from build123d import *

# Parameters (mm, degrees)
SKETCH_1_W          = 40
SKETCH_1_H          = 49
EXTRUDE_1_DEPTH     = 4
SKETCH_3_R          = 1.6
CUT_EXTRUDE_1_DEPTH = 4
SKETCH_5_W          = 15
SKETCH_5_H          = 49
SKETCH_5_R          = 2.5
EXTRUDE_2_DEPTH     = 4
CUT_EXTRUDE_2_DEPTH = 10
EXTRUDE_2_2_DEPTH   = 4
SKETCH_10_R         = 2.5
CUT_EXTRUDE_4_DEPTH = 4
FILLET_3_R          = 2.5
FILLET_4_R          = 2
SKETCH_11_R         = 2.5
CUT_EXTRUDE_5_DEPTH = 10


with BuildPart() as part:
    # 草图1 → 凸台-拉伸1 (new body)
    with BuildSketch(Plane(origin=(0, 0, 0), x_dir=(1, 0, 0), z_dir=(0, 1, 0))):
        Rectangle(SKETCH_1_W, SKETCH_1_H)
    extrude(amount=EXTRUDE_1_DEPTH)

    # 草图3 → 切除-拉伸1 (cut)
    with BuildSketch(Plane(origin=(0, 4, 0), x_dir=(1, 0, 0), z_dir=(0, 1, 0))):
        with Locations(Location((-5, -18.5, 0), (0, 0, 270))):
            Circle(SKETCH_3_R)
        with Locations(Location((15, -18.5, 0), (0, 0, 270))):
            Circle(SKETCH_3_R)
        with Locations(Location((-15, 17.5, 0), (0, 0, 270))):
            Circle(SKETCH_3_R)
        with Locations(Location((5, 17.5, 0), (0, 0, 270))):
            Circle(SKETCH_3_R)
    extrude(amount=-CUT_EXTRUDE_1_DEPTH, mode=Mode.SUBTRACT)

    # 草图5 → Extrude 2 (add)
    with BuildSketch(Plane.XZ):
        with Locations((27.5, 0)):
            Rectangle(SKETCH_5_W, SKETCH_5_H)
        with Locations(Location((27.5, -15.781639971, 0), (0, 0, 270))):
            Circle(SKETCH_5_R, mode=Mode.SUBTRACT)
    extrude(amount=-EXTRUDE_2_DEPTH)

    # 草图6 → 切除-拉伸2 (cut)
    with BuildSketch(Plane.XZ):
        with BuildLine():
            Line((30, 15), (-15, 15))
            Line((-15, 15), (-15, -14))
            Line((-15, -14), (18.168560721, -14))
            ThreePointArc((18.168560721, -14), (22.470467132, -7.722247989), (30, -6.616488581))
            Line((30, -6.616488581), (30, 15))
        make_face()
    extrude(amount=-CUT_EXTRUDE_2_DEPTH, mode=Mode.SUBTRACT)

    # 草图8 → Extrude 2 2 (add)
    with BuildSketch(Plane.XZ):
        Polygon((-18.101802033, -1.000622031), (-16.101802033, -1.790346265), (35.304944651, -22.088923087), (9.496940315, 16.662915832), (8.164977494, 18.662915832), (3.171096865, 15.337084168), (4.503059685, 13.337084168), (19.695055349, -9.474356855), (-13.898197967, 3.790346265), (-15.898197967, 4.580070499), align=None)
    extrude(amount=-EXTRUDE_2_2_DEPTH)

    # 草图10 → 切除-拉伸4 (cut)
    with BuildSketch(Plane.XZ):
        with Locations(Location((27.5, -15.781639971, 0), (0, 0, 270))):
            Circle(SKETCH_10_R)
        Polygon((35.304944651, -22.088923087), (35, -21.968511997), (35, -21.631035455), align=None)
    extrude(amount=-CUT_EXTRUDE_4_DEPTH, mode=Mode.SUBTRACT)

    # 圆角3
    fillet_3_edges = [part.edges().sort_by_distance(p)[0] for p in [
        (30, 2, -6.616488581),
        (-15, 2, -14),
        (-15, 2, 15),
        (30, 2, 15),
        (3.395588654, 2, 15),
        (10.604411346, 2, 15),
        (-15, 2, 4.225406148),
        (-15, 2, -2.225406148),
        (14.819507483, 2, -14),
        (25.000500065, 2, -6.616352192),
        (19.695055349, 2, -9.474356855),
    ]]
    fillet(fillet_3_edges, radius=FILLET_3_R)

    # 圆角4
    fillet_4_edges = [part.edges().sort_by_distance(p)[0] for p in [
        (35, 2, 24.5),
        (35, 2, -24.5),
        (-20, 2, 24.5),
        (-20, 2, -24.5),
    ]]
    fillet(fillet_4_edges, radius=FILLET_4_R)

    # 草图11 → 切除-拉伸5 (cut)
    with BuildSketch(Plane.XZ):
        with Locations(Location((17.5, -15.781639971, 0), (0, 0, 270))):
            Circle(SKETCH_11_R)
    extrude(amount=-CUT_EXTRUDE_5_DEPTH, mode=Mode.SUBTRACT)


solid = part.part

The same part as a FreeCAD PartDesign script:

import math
import FreeCAD as App
import Part
import Sketcher

V = App.Vector
Q = App.Units.Quantity


def edges_at(feature, points):
    """Names of the edges that pass closest to the given points."""
    edges = feature.Shape.Edges
    near = lambda p: min(range(len(edges)), key=lambda i: edges[i].distToShape(Part.Vertex(*p))[0])
    return sorted({f"Edge{near(p) + 1}" for p in points})


def add_polygon(sketch, points):
    """Adds a closed chain of lines whose ends are joined by coincident constraints."""
    first, n = sketch.GeometryCount, len(points)
    for a, b in zip(points, points[1:] + points[:1]):
        sketch.addGeometry(Part.LineSegment(App.Vector(*a, 0), App.Vector(*b, 0)), False)
    for i in range(n):
        sketch.addConstraint(Sketcher.Constraint("Coincident", first + i, 2, first + (i + 1) % n, 1))

doc = App.newDocument("Part")
params = doc.addObject("Spreadsheet::Sheet", "Params")
for row, (alias, value) in enumerate([
    ("sketch1_width", "40 mm"),
    ("sketch1_height", "49 mm"),
    ("pad1_length", "4 mm"),
    ("sketch2_diameter", "3.2 mm"),
    ("pocket1_length", "4 mm"),
    ("sketch3_diameter", "5 mm"),
    ("sketch3_width", "15 mm"),
    ("sketch3_height", "49 mm"),
    ("pad2_length", "4 mm"),
    ("sketch4_radius", "9.5 mm"),
    ("sketch4_width", "45 mm"),
    ("sketch4_height", "29 mm"),
    ("pocket2_length", "10 mm"),
    ("sketch5_length", "6 mm"),
    ("sketch5_length2", "6 mm"),
    ("pad3_length", "4 mm"),
    ("sketch6_diameter", "5 mm"),
    ("pocket3_length", "4 mm"),
    ("fillet_radius", "2.5 mm"),
    ("fillet2_radius", "2 mm"),
    ("sketch7_diameter", "5 mm"),
    ("pocket4_length", "10 mm"),
], start=1):
    params.set(f"A{row}", alias)
    params.set(f"B{row}", "=" + value)
    params.setAlias(f"B{row}", alias)

body = doc.addObject("PartDesign::Body", "Body")

# Sketch on XZ plane
sketch1 = doc.addObject("Sketcher::SketchObject", "Sketch")
body.addObject(sketch1)
sketch1.AttachmentSupport = (doc.XZ_Plane, [""])
sketch1.MapMode = "FlatFace"
add_polygon(sketch1, [(-20, -24), (-20, 24), (20, 24), (20, -24)])  # lines 0-3
sketch1.addConstraint([
    Sketcher.Constraint("Vertical", 0),
    Sketcher.Constraint("Horizontal", 1),
    Sketcher.Constraint("Vertical", 2),
    Sketcher.Constraint("Horizontal", 3),
    Sketcher.Constraint("Symmetric", 0, 2, 2, 2, -1, 1),
    Sketcher.Constraint("DistanceX", 1, 1, 1, 2, Q("40 mm")),
    Sketcher.Constraint("DistanceY", 0, 1, 0, 2, Q("49 mm")),
])
sketch1.setExpression("Constraints[9]", "Params.sketch1_width")
sketch1.setExpression("Constraints[10]", "Params.sketch1_height")
pad1 = doc.addObject("PartDesign::Pad", "Pad")
body.addObject(pad1)
pad1.Profile = sketch1
pad1.setExpression("Length", "Params.pad1_length")
pad1.Reversed = True

# Sketch on XZ plane
sketch2 = doc.addObject("Sketcher::SketchObject", "Sketch001")
body.addObject(sketch2)
sketch2.AttachmentSupport = (doc.XZ_Plane, [""])
sketch2.MapMode = "FlatFace"
sketch2.AttachmentOffset = App.Placement(V(0, 0, -4), App.Rotation())
sketch2.addGeometry([
    Part.Circle(V(-5, 18.5, 0), V(0, 0, 1), 1.6),
    Part.Circle(V(15, 18.5, 0), V(0, 0, 1), 1.6),
    Part.Circle(V(-15, -17.5, 0), V(0, 0, 1), 1.6),
    Part.Circle(V(5, -17.5, 0), V(0, 0, 1), 1.6),
], False)
sketch2.addConstraint([
    Sketcher.Constraint("Equal", 0, 1),
    Sketcher.Constraint("Equal", 1, 2),
    Sketcher.Constraint("Equal", 2, 3),
    Sketcher.Constraint("Horizontal", 0, 3, 1, 3),
    Sketcher.Constraint("Horizontal", 2, 3, 3, 3),
    Sketcher.Constraint("Diameter", 0, Q("3.2 mm")),
    Sketcher.Constraint("DistanceX", 0, 3, -1, 1, Q("5 mm")),
    Sketcher.Constraint("DistanceX", -1, 1, 1, 3, Q("15 mm")),
    Sketcher.Constraint("DistanceX", 2, 3, -1, 1, Q("15 mm")),
    Sketcher.Constraint("DistanceX", -1, 1, 3, 3, Q("5 mm")),
    Sketcher.Constraint("DistanceY", 2, 3, 0, 3, Q("36 mm")),
    Sketcher.Constraint("DistanceY", -1, 1, 0, 3, Q("18.5 mm")),
])
sketch2.setExpression("Constraints[5]", "Params.sketch2_diameter")
pocket1 = doc.addObject("PartDesign::Pocket", "Pocket")
body.addObject(pocket1)
pocket1.Profile = sketch2
pocket1.setExpression("Length", "Params.pocket1_length")
pocket1.Reversed = True

# Sketch on XZ plane
sketch3 = doc.addObject("Sketcher::SketchObject", "Sketch002")
body.addObject(sketch3)
sketch3.AttachmentSupport = (doc.XZ_Plane, [""])
sketch3.MapMode = "FlatFace"
add_polygon(sketch3, [(20, 24.5), (20, -24.5), (35, -24.5), (35, 24.5)])  # lines 0-3
sketch3.addGeometry(Part.Circle(V(27.5, -15.8, 0), V(0, 0, 1), 2.5), False)  # 4
sketch3.addConstraint([
    Sketcher.Constraint("Vertical", 0),
    Sketcher.Constraint("Horizontal", 1),
    Sketcher.Constraint("Vertical", 2),
    Sketcher.Constraint("Horizontal", 3),
    Sketcher.Constraint("Diameter", 4, Q("5 mm")),
    Sketcher.Constraint("DistanceX", 1, 1, 1, 2, Q("15 mm")),
    Sketcher.Constraint("DistanceY", 0, 2, 0, 1, Q("49 mm")),
    Sketcher.Constraint("DistanceX", -1, 1, 0, 2, Q("20 mm")),
    Sketcher.Constraint("DistanceX", -1, 1, 4, 3, Q("27.5 mm")),
    Sketcher.Constraint("DistanceY", 0, 2, -1, 1, Q("24.5 mm")),
    Sketcher.Constraint("DistanceY", 4, 3, -1, 1, Q("15.78164 mm")),
])
sketch3.setExpression("Constraints[8]", "Params.sketch3_diameter")
sketch3.setExpression("Constraints[9]", "Params.sketch3_width")
sketch3.setExpression("Constraints[10]", "Params.sketch3_height")
pad2 = doc.addObject("PartDesign::Pad", "Pad001")
body.addObject(pad2)
pad2.Profile = sketch3
pad2.setExpression("Length", "Params.pad2_length")
pad2.Reversed = True

# Sketch on XZ plane
sketch4 = doc.addObject("Sketcher::SketchObject", "Sketch003")
body.addObject(sketch4)
sketch4.AttachmentSupport = (doc.XZ_Plane, [""])
sketch4.MapMode = "FlatFace"
sketch4.addGeometry([
    Part.LineSegment(V(30, 15, 0), V(-15, 15, 0)),  # 0
    Part.LineSegment(V(-15, 15, 0), V(-15, -14, 0)),  # 1
    Part.LineSegment(V(-15, -14, 0), V(18, -14, 0)),  # 2
    Part.ArcOfCircle(Part.Circle(V(28, -16, 0), V(0, 0, 1), 10), math.radians(75), math.radians(169)),  # 3
    Part.LineSegment(V(30, -7, 0), V(30, 15, 0)),  # 4
], False)
sketch4.addConstraint([
    Sketcher.Constraint("Coincident", 0, 2, 1, 1),
    Sketcher.Constraint("Coincident", 1, 2, 2, 1),
    Sketcher.Constraint("Coincident", 2, 2, 3, 2),
    Sketcher.Constraint("Coincident", 3, 1, 4, 1),
    Sketcher.Constraint("Coincident", 4, 2, 0, 1),
    Sketcher.Constraint("Horizontal", 0),
    Sketcher.Constraint("Vertical", 1),
    Sketcher.Constraint("Horizontal", 2),
    Sketcher.Constraint("Vertical", 4),
    Sketcher.Constraint("Radius", 3, Q("9.5 mm")),
    Sketcher.Constraint("DistanceX", 0, 2, 0, 1, Q("45 mm")),
    Sketcher.Constraint("DistanceY", 1, 2, 1, 1, Q("29 mm")),
    Sketcher.Constraint("DistanceX", 0, 2, -1, 1, Q("15 mm")),
    Sketcher.Constraint("DistanceY", -1, 1, 0, 2, Q("15 mm")),
    Sketcher.Constraint("DistanceX", -1, 1, 3, 3, Q("27.5 mm")),
    Sketcher.Constraint("DistanceX", 2, 1, 2, 2, Q("33.168561 mm")),
])
sketch4.setExpression("Constraints[9]", "Params.sketch4_radius")
sketch4.setExpression("Constraints[10]", "Params.sketch4_width")
sketch4.setExpression("Constraints[11]", "Params.sketch4_height")
pocket2 = doc.addObject("PartDesign::Pocket", "Pocket001")
body.addObject(pocket2)
pocket2.Profile = sketch4
pocket2.setExpression("Length", "Params.pocket2_length")

# Sketch on XZ plane
sketch5 = doc.addObject("Sketcher::SketchObject", "Sketch004")
body.addObject(sketch5)
sketch5.AttachmentSupport = (doc.XZ_Plane, [""])
sketch5.MapMode = "FlatFace"
add_polygon(sketch5, [(-18.101802, -1.000622), (-16.101802, -1.790346), (35.304945, -22.088923), (9.49694, 16.662916), (8.164977, 18.662916), (3.171097, 15.337084), (4.50306, 13.337084), (19.695055, -9.474357), (-13.898198, 3.790346), (-15.898198, 4.58007)])  # lines 0-9
sketch5.addConstraint([
    Sketcher.Constraint("Distance", 4, Q("6 mm")),
    Sketcher.Constraint("Distance", 9, Q("6 mm")),
    Sketcher.Constraint("DistanceY", 2, 2, 3, 2, Q("2 mm")),
    Sketcher.Constraint("DistanceY", 5, 2, 4, 2, Q("2 mm")),
    Sketcher.Constraint("DistanceX", 8, 2, 7, 2, Q("2 mm")),
    Sketcher.Constraint("DistanceX", 9, 2, 0, 2, Q("2 mm")),
    Sketcher.Constraint("DistanceX", 0, 2, 4, 2, Q("19.272899 mm")),
    Sketcher.Constraint("Distance", 0, Q("2.150271 mm")),
    Sketcher.Constraint("Distance", 2, Q("46.559189 mm")),
    Sketcher.Constraint("Distance", 3, Q("2.402941 mm")),
    Sketcher.Constraint("Distance", 5, Q("2.402941 mm")),
    Sketcher.Constraint("Distance", 8, Q("2.150271 mm")),
    Sketcher.Constraint("DistanceX", -1, 1, 2, 2, Q("9.49694 mm")),
    Sketcher.Constraint("DistanceX", -1, 1, 5, 2, Q("4.50306 mm")),
    Sketcher.Constraint("DistanceY", -1, 1, 8, 2, Q("4.58007 mm")),
    Sketcher.Constraint("DistanceY", 1, 2, 2, 2, Q("38.751839 mm")),
    Sketcher.Constraint("DistanceY", 0, 2, 4, 2, Q("17.12743 mm")),
    Sketcher.Constraint("DistanceX", 6, 2, 1, 2, Q("15.609889 mm")),
    Sketcher.Constraint("DistanceY", 6, 2, 5, 2, Q("22.811441 mm")),
    Sketcher.Constraint("DistanceY", 7, 2, 3, 2, Q("14.87257 mm")),
])
sketch5.setExpression("Constraints[10]", "Params.sketch5_length")
sketch5.setExpression("Constraints[11]", "Params.sketch5_length2")
pad3 = doc.addObject("PartDesign::Pad", "Pad002")
body.addObject(pad3)
pad3.Profile = sketch5
pad3.setExpression("Length", "Params.pad3_length")
pad3.Reversed = True

# Sketch on XZ plane
sketch6 = doc.addObject("Sketcher::SketchObject", "Sketch005")
body.addObject(sketch6)
sketch6.AttachmentSupport = (doc.XZ_Plane, [""])
sketch6.MapMode = "FlatFace"
sketch6.addGeometry(Part.Circle(V(27.5, -15.78, 0), V(0, 0, 1), 2.5), False)  # 0
add_polygon(sketch6, [(35, -21.97), (35.3, -22.09), (35, -21.63)])  # lines 1-3
sketch6.addConstraint([
    Sketcher.Constraint("Vertical", 3),
    Sketcher.Constraint("Diameter", 0, Q("5 mm")),
    Sketcher.Constraint("DistanceX", -1, 1, 2, 2, Q("35 mm")),
    Sketcher.Constraint("DistanceX", -1, 1, 0, 3, Q("27.5 mm")),
    Sketcher.Constraint("Distance", 2, Q("0.550138 mm")),
    Sketcher.Constraint("DistanceY", 3, 2, 3, 1, Q("0.337477 mm")),
    Sketcher.Constraint("DistanceY", 0, 3, -1, 1, Q("15.78164 mm")),
    Sketcher.Constraint("DistanceY", 3, 2, -1, 1, Q("21.968512 mm")),
    Sketcher.Constraint("DistanceY", 1, 2, 3, 2, Q("0.120411 mm")),
])
sketch6.setExpression("Constraints[4]", "Params.sketch6_diameter")
pocket3 = doc.addObject("PartDesign::Pocket", "Pocket002")
body.addObject(pocket3)
pocket3.Profile = sketch6
pocket3.setExpression("Length", "Params.pocket3_length")
doc.recompute()

fillet = doc.addObject("PartDesign::Fillet", "Fillet")
body.addObject(fillet)
fillet.Base = (pocket3, edges_at(pocket3, [
    (30, 2, -6.616),
    (-15, 2, -14),
    (-15, 2, 15),
    (30, 2, 15),
    (3.396, 2, 15),
    (10.604, 2, 15),
    (-15, 2, 4.225),
    (-15, 2, -2.225),
    (14.82, 2, -14),
    (25.001, 2, -6.616),
    (19.695, 2, -9.474),
]))
fillet.setExpression("Radius", "Params.fillet_radius")
doc.recompute()

fillet2 = doc.addObject("PartDesign::Fillet", "Fillet001")
body.addObject(fillet2)
fillet2.Base = (fillet, edges_at(fillet, [
    (35, 2, 24.5),
    (35, 2, -24.5),
    (-20, 2, 24.5),
    (-20, 2, -24.5),
]))
fillet2.setExpression("Radius", "Params.fillet2_radius")

# Sketch on XZ plane
sketch7 = doc.addObject("Sketcher::SketchObject", "Sketch006")
body.addObject(sketch7)
sketch7.AttachmentSupport = (doc.XZ_Plane, [""])
sketch7.MapMode = "FlatFace"
sketch7.addGeometry(Part.Circle(V(17.5, -15.8, 0), V(0, 0, 1), 2.5), False)
sketch7.addConstraint([
    Sketcher.Constraint("Diameter", 0, Q("5 mm")),
    Sketcher.Constraint("DistanceX", -1, 1, 0, 3, Q("17.5 mm")),
    Sketcher.Constraint("DistanceY", 0, 3, -1, 1, Q("15.78164 mm")),
])
sketch7.setExpression("Constraints[0]", "Params.sketch7_diameter")
pocket4 = doc.addObject("PartDesign::Pocket", "Pocket003")
body.addObject(pocket4)
pocket4.Profile = sketch7
pocket4.setExpression("Length", "Params.pocket4_length")

doc.recompute()
